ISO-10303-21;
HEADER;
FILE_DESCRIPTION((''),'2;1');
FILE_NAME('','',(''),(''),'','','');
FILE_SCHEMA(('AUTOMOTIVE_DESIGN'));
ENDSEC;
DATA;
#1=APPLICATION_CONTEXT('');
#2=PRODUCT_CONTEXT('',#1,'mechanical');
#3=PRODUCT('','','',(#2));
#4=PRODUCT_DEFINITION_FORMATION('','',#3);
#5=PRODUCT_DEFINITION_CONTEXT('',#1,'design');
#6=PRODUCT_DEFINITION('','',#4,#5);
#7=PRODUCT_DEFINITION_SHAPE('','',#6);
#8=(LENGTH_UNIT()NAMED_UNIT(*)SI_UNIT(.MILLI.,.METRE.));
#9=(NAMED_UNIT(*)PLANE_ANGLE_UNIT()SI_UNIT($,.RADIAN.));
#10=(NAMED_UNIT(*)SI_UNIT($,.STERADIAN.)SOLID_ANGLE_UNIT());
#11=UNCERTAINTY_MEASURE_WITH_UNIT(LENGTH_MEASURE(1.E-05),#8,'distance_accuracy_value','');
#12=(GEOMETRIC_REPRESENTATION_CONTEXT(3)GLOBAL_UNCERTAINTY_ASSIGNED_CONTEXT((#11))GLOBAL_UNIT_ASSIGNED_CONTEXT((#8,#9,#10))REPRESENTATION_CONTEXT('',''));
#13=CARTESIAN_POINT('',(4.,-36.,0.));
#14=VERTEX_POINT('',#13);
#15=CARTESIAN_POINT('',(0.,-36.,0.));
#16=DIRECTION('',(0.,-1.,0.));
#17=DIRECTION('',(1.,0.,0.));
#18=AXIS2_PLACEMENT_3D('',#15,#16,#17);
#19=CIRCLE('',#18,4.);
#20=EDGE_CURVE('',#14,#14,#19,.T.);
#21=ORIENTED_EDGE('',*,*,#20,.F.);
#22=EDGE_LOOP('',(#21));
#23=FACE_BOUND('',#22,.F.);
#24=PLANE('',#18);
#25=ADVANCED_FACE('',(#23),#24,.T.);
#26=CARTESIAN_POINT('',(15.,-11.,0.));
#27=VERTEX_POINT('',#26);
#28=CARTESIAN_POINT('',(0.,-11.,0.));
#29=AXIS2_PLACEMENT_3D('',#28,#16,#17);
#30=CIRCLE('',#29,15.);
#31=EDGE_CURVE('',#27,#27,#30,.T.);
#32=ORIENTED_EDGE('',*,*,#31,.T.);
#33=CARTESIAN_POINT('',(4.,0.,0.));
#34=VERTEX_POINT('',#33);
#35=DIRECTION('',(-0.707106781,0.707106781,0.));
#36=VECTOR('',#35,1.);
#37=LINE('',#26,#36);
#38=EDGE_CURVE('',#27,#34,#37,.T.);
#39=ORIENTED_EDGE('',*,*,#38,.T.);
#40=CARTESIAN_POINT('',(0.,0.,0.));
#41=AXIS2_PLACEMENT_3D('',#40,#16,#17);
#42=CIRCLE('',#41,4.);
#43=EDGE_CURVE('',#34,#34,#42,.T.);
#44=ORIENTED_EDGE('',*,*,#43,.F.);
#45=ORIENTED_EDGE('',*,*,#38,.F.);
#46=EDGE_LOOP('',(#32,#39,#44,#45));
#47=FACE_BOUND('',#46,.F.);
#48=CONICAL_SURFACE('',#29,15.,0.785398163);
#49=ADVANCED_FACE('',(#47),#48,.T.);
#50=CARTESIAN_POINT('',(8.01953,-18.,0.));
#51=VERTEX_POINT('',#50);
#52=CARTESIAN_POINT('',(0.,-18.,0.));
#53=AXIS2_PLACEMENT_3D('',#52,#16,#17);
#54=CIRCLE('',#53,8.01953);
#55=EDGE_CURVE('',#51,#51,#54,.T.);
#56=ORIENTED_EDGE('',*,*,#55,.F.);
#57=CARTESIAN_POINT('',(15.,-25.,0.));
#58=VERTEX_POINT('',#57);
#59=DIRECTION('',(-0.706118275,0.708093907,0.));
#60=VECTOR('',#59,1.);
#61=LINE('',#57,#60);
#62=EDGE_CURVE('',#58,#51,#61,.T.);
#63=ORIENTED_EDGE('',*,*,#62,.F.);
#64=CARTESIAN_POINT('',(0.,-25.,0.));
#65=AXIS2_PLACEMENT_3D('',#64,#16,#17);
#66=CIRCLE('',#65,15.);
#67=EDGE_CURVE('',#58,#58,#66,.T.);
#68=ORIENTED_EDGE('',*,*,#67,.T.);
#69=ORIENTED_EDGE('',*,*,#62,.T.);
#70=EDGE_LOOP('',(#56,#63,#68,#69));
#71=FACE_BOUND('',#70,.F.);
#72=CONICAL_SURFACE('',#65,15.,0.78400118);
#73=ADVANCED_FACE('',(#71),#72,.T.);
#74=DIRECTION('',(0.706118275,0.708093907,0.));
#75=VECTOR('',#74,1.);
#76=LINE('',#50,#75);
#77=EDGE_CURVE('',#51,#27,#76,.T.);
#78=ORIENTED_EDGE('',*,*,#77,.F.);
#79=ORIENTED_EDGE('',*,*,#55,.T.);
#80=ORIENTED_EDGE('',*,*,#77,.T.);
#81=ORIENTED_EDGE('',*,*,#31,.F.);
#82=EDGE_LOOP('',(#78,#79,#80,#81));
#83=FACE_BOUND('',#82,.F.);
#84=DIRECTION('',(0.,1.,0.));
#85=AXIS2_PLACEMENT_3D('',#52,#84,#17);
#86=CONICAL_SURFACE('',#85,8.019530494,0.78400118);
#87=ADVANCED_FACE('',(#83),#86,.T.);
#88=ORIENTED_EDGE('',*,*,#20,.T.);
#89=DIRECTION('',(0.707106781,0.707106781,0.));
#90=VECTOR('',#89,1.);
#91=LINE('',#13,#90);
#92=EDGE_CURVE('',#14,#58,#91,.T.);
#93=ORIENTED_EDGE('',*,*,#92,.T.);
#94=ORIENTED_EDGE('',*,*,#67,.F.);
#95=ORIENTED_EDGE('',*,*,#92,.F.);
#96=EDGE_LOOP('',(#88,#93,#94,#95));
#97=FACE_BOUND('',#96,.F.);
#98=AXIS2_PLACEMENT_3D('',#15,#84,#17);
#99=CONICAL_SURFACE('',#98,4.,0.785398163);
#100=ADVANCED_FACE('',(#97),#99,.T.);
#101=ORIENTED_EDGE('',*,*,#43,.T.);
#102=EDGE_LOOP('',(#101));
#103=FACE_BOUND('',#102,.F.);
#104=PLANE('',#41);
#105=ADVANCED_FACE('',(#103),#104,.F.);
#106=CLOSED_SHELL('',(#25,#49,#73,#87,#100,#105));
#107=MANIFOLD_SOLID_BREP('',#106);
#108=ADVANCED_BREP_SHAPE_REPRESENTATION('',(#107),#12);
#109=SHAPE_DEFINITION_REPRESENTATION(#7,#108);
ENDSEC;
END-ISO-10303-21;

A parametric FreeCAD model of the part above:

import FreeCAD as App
import Part
import Sketcher

doc = App.newDocument("Part")
body = doc.addObject("PartDesign::Body", "Body")

sketch1 = body.newObject("Sketcher::SketchObject", "Sketch")
sketch1.AttachmentSupport = (doc.getObject("XY_Plane"), [""])
sketch1.MapMode = "FlatFace"
sketch1.addGeometry([
    Part.LineSegment(App.Vector(4, 0, 0), App.Vector(0, 0, 0)),
    Part.LineSegment(App.Vector(0, 0, 0), App.Vector(0, -36, 0)),
    Part.LineSegment(App.Vector(0, -36, 0), App.Vector(4, -36, 0)),
    Part.LineSegment(App.Vector(4, -36, 0), App.Vector(15, -25, 0)),
    Part.LineSegment(App.Vector(15, -25, 0), App.Vector(8, -18, 0)),
    Part.LineSegment(App.Vector(8, -18, 0), App.Vector(15, -11, 0)),
    Part.LineSegment(App.Vector(15, -11, 0), App.Vector(4, 0, 0)),
], False)
sketch1.addConstraint([
    Sketcher.Constraint("Coincident", 0, 2, 1, 1),
    Sketcher.Constraint("Coincident", 1, 2, 2, 1),
    Sketcher.Constraint("Coincident", 2, 2, 3, 1),
    Sketcher.Constraint("Coincident", 3, 2, 4, 1),
    Sketcher.Constraint("Coincident", 4, 2, 5, 1),
    Sketcher.Constraint("Coincident", 5, 2, 6, 1),
    Sketcher.Constraint("Coincident", 6, 2, 0, 1),
    Sketcher.Constraint("Horizontal", 0),
    Sketcher.Constraint("Vertical", 1),
    Sketcher.Constraint("Horizontal", 2),
    Sketcher.Constraint("Coincident", 0, 2, -1, 1),
    Sketcher.Constraint("Perpendicular", 3, 6),
    Sketcher.Constraint("Vertical", 3, 2, 5, 2),
    Sketcher.Constraint("Vertical", 2, 2, 6, 2),
    Sketcher.Constraint("Equal", 4, 5),
    Sketcher.Constraint("Equal", 3, 6),
    Sketcher.Constraint("DistanceX", 0, 2, 0, 1, 4.0),
    Sketcher.Constraint("DistanceY", 1, 2, 1, 1, 36.0),
    Sketcher.Constraint("DistanceX", -1, 1, 3, 2, 15.0),
    Sketcher.Constraint("DistanceX", -1, 1, 4, 2, 8.01953),
])
revolution = body.newObject("PartDesign::Revolution", "Revolution")
revolution.Profile = sketch1
revolution.ReferenceAxis = (sketch1, ["V_Axis"])
revolution.Angle = 360

doc.recompute()
